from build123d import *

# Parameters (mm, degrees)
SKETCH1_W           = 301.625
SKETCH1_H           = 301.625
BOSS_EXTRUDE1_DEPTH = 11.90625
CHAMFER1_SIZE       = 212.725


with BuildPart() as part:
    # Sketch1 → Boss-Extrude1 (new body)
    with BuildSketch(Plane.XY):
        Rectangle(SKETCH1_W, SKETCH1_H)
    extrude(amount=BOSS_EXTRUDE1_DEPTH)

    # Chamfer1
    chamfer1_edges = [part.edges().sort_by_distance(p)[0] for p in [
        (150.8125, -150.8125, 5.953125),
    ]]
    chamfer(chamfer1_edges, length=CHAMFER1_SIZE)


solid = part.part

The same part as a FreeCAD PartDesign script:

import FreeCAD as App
import Part
import Sketcher
Q = App.Units.Quantity


def edges_at(feature, points):
    """Names of the edges that pass closest to the given points."""
    edges = feature.Shape.Edges
    near = lambda p: min(range(len(edges)), key=lambda i: edges[i].distToShape(Part.Vertex(*p))[0])
    return sorted({f"Edge{near(p) + 1}" for p in points})


def add_polygon(sketch, points):
    """Adds a closed chain of lines whose ends are joined by coincident constraints."""
    first, n = sketch.GeometryCount, len(points)
    for a, b in zip(points, points[1:] + points[:1]):
        sketch.addGeometry(Part.LineSegment(App.Vector(*a, 0), App.Vector(*b, 0)), False)
    for i in range(n):
        sketch.addConstraint(Sketcher.Constraint("Coincident", first + i, 2, first + (i + 1) % n, 1))

doc = App.newDocument("Part")
params = doc.addObject("Spreadsheet::Sheet", "Params")
for row, (alias, value) in enumerate([
    ("sketch1_width", "11.875 in"),
    ("pad1_length", "0.46875 in"),
    ("chamfer_size", "8.375 in"),
], start=1):
    params.set(f"A{row}", alias)
    params.set(f"B{row}", "=" + value)
    params.setAlias(f"B{row}", alias)

body = doc.addObject("PartDesign::Body", "Body")

# Sketch on XY plane
sketch1 = body.newObject("Sketcher::SketchObject", "Sketch")
sketch1.AttachmentSupport = (doc.getObject("XY_Plane"), [""])
sketch1.MapMode = "FlatFace"
add_polygon(sketch1, [(-151, 151), (-151, -151), (151, -151), (151, 151)])  # lines 0-3
sketch1.addConstraint([
    Sketcher.Constraint("Vertical", 0),
    Sketcher.Constraint("Horizontal", 1),
    Sketcher.Constraint("Vertical", 2),
    Sketcher.Constraint("Horizontal", 3),
    Sketcher.Constraint("Symmetric", 0, 2, 2, 2, -1, 1),
    Sketcher.Constraint("Equal", 3, 0),
    Sketcher.Constraint("DistanceX", 1, 1, 1, 2, Q("11.875 in")),
])
sketch1.setExpression("Constraints[10]", "Params.sketch1_width")
pad1 = body.newObject("PartDesign::Pad", "Pad")
pad1.Profile = sketch1
pad1.setExpression("Length", "Params.pad1_length")
doc.recompute()

chamfer = body.newObject("PartDesign::Chamfer", "Chamfer")
chamfer.Base = (pad1, edges_at(pad1, [(150.812, -150.812, 5.953)]))
chamfer.setExpression("Size", "Params.chamfer_size")

doc.recompute()
